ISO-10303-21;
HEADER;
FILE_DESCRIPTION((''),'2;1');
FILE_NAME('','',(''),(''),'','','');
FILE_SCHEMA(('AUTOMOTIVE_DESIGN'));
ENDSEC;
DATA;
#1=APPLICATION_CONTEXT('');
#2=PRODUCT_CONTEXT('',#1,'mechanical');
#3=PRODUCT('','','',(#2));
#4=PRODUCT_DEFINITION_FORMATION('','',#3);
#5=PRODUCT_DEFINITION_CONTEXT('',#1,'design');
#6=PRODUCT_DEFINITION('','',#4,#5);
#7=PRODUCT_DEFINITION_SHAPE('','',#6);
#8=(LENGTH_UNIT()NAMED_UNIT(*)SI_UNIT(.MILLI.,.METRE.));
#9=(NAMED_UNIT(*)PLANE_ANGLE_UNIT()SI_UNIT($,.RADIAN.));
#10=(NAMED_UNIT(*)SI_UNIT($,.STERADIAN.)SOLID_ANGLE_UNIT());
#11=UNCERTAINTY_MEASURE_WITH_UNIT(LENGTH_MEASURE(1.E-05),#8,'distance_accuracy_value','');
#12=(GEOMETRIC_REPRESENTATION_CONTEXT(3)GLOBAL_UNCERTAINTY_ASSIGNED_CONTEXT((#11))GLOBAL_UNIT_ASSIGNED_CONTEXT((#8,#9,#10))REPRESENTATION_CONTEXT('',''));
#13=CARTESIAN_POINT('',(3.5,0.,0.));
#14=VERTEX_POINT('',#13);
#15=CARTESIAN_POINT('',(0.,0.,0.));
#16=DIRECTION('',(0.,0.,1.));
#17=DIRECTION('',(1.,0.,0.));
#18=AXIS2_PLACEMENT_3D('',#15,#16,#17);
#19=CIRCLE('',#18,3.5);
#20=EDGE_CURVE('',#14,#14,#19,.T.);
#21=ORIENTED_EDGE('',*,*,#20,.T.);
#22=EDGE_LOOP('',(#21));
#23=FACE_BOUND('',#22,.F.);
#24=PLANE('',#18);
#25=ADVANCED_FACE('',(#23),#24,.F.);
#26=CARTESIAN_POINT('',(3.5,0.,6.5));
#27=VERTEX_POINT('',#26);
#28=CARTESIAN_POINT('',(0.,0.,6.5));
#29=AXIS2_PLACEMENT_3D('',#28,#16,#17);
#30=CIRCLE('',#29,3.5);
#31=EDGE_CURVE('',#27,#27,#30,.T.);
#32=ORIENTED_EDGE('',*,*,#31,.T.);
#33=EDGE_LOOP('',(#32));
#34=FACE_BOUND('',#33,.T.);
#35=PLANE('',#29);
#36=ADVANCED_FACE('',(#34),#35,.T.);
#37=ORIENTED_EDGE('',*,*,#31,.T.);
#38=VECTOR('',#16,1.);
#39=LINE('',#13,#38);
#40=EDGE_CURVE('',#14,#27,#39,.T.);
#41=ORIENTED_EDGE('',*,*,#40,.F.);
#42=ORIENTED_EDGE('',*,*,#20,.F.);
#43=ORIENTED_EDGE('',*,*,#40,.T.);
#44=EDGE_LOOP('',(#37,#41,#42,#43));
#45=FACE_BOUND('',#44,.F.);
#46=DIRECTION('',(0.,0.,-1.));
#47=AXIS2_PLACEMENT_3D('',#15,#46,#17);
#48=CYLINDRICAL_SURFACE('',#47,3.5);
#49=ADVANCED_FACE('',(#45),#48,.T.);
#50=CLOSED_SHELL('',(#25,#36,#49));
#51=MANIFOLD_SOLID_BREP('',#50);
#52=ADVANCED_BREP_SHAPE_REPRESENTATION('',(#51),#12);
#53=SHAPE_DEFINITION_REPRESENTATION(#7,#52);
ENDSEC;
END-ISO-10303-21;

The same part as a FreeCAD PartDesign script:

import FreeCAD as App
import Part
import Sketcher
Q = App.Units.Quantity

doc = App.newDocument("Part")
body = doc.addObject("PartDesign::Body", "Body")

# Sketch on XY plane
sketch1 = body.newObject("Sketcher::SketchObject", "Sketch")
sketch1.AttachmentSupport = (doc.getObject("XY_Plane"), [""])
sketch1.MapMode = "FlatFace"
sketch1.addGeometry(Part.Circle(App.Vector(0, 0, 0), App.Vector(0, 0, 1), 3.5), False)
sketch1.addConstraint([
    Sketcher.Constraint("Coincident", 0, 3, -1, 1),
    Sketcher.Constraint("Diameter", 0, Q("7 mm")),
])
pad1 = body.newObject("PartDesign::Pad", "Pad")
pad1.Profile = sketch1
pad1.Length = 6.5

doc.recompute()
